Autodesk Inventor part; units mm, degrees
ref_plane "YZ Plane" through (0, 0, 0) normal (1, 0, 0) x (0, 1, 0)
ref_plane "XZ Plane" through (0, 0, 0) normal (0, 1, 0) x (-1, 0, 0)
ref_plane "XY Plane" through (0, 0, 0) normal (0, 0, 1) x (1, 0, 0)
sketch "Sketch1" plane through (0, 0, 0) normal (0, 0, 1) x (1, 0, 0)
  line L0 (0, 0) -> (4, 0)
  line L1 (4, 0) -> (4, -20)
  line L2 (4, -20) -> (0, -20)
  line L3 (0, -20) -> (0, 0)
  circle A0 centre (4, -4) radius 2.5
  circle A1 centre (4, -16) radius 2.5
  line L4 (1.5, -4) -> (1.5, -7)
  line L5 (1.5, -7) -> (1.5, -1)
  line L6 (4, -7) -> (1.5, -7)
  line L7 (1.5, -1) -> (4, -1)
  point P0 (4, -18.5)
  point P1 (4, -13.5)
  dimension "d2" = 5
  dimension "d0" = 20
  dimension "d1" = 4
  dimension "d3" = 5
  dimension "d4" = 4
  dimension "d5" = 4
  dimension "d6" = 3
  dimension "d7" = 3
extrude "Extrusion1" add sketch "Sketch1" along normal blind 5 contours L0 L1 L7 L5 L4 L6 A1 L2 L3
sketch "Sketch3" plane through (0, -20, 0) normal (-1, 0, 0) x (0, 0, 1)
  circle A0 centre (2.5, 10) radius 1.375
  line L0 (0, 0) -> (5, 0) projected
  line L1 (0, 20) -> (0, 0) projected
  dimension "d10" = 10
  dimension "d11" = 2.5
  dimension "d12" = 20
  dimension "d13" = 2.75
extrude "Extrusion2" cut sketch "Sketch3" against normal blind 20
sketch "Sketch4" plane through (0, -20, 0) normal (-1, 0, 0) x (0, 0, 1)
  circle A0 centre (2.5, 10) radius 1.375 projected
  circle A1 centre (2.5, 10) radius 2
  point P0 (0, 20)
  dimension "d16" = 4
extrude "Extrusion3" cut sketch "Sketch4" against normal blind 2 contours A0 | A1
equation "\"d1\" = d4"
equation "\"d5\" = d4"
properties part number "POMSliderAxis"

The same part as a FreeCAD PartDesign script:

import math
import FreeCAD as App
import Part
import Sketcher

V = App.Vector

doc = App.newDocument("Part")
body = doc.addObject("PartDesign::Body", "Body")

sketch1 = body.newObject("Sketcher::SketchObject", "Sketch")
sketch1.AttachmentSupport = (doc.getObject("XY_Plane"), [""])
sketch1.MapMode = "FlatFace"
sketch1.addGeometry(Part.LineSegment(V(4, 0, 0), V(0, 0, 0)), False)
sketch1.addGeometry(Part.LineSegment(V(0, 0, 0), V(0, -20, 0)), False)
sketch1.addGeometry(Part.LineSegment(V(0, -20, 0), V(4, -20, 0)), False)
sketch1.addGeometry(Part.LineSegment(V(4, -20, 0), V(4, -18.5, 0)), False)
sketch1.addGeometry(Part.ArcOfCircle(Part.Circle(V(4, -16, 0), V(0, 0, 1), 2.5), math.radians(90), math.radians(270)), False)
sketch1.addGeometry(Part.LineSegment(V(4, -13.5, 0), V(4, -7, 0)), False)
sketch1.addGeometry(Part.LineSegment(V(4, -7, 0), V(1.5, -7, 0)), False)
sketch1.addGeometry(Part.LineSegment(V(1.5, -7, 0), V(1.5, -1, 0)), False)
sketch1.addGeometry(Part.LineSegment(V(1.5, -1, 0), V(4, -1, 0)), False)
sketch1.addGeometry(Part.LineSegment(V(4, -1, 0), V(4, 0, 0)), False)
sketch1.addConstraint(Sketcher.Constraint("Coincident", 0, 2, 1, 1))
sketch1.addConstraint(Sketcher.Constraint("Coincident", 1, 2, 2, 1))
sketch1.addConstraint(Sketcher.Constraint("Coincident", 2, 2, 3, 1))
sketch1.addConstraint(Sketcher.Constraint("Coincident", 3, 2, 4, 2))
sketch1.addConstraint(Sketcher.Constraint("Coincident", 4, 1, 5, 1))
sketch1.addConstraint(Sketcher.Constraint("Coincident", 5, 2, 6, 1))
sketch1.addConstraint(Sketcher.Constraint("Coincident", 6, 2, 7, 1))
sketch1.addConstraint(Sketcher.Constraint("Coincident", 7, 2, 8, 1))
sketch1.addConstraint(Sketcher.Constraint("Coincident", 8, 2, 9, 1))
sketch1.addConstraint(Sketcher.Constraint("Coincident", 9, 2, 0, 1))
sketch1.addConstraint(Sketcher.Constraint("Horizontal", 0))
sketch1.addConstraint(Sketcher.Constraint("Vertical", 1))
sketch1.addConstraint(Sketcher.Constraint("Horizontal", 2))
sketch1.addConstraint(Sketcher.Constraint("Vertical", 3))
sketch1.addConstraint(Sketcher.Constraint("Vertical", 5))
sketch1.addConstraint(Sketcher.Constraint("Horizontal", 6))
sketch1.addConstraint(Sketcher.Constraint("Vertical", 7))
sketch1.addConstraint(Sketcher.Constraint("Horizontal", 8))
sketch1.addConstraint(Sketcher.Constraint("Vertical", 9))
sketch1.addConstraint(Sketcher.Constraint("Coincident", 0, 2, -1, 1))
sketch1.addConstraint(Sketcher.Constraint("Vertical", 4, 3, 2, 2))
sketch1.addConstraint(Sketcher.Constraint("Vertical", 3, 2, 4, 1))
sketch1.addConstraint(Sketcher.Constraint("Vertical", 5, 2, 8, 2))
sketch1.addConstraint(Sketcher.Constraint("Radius", 4, 2.5))
sketch1.addConstraint(Sketcher.Constraint("DistanceX", 0, 2, 0, 1, 4.0))
sketch1.addConstraint(Sketcher.Constraint("DistanceY", 1, 2, 1, 1, 20.0))
sketch1.addConstraint(Sketcher.Constraint("DistanceY", 1, 2, 4, 3, 4.0))
sketch1.addConstraint(Sketcher.Constraint("DistanceY", 7, 1, 7, 2, 6.0))
sketch1.addConstraint(Sketcher.Constraint("DistanceY", 9, 1, 9, 2, 1.0))
sketch1.addConstraint(Sketcher.Constraint("DistanceX", 6, 2, 6, 1, 2.5))
pad1 = body.newObject("PartDesign::Pad", "Pad")
pad1.Profile = sketch1
pad1.Length = 5

sketch2 = body.newObject("Sketcher::SketchObject", "Sketch001")
sketch2.AttachmentSupport = (doc.getObject("YZ_Plane"), [""])
sketch2.MapMode = "FlatFace"
sketch2.addGeometry(Part.Circle(V(-10, 2.5, 0), V(0, 0, 1), 1.375), False)
sketch2.addConstraint(Sketcher.Constraint("Diameter", 0, 2.75))
sketch2.addConstraint(Sketcher.Constraint("DistanceX", 0, 3, -1, 1, 10.0))
sketch2.addConstraint(Sketcher.Constraint("DistanceY", -1, 1, 0, 3, 2.5))
pocket1 = body.newObject("PartDesign::Pocket", "Pocket")
pocket1.Profile = sketch2
pocket1.Length = 20
pocket1.Reversed = True

sketch3 = body.newObject("Sketcher::SketchObject", "Sketch002")
sketch3.AttachmentSupport = (doc.getObject("YZ_Plane"), [""])
sketch3.MapMode = "FlatFace"
sketch3.addGeometry(Part.Circle(V(-10, 2.5, 0), V(0, 0, 1), 2), False)
sketch3.addConstraint(Sketcher.Constraint("Diameter", 0, 4.0))
sketch3.addConstraint(Sketcher.Constraint("DistanceX", 0, 3, -1, 1, 10.0))
sketch3.addConstraint(Sketcher.Constraint("DistanceY", -1, 1, 0, 3, 2.5))
pocket2 = body.newObject("PartDesign::Pocket", "Pocket001")
pocket2.Profile = sketch3
pocket2.Length = 2
pocket2.Reversed = True

doc.recompute()
